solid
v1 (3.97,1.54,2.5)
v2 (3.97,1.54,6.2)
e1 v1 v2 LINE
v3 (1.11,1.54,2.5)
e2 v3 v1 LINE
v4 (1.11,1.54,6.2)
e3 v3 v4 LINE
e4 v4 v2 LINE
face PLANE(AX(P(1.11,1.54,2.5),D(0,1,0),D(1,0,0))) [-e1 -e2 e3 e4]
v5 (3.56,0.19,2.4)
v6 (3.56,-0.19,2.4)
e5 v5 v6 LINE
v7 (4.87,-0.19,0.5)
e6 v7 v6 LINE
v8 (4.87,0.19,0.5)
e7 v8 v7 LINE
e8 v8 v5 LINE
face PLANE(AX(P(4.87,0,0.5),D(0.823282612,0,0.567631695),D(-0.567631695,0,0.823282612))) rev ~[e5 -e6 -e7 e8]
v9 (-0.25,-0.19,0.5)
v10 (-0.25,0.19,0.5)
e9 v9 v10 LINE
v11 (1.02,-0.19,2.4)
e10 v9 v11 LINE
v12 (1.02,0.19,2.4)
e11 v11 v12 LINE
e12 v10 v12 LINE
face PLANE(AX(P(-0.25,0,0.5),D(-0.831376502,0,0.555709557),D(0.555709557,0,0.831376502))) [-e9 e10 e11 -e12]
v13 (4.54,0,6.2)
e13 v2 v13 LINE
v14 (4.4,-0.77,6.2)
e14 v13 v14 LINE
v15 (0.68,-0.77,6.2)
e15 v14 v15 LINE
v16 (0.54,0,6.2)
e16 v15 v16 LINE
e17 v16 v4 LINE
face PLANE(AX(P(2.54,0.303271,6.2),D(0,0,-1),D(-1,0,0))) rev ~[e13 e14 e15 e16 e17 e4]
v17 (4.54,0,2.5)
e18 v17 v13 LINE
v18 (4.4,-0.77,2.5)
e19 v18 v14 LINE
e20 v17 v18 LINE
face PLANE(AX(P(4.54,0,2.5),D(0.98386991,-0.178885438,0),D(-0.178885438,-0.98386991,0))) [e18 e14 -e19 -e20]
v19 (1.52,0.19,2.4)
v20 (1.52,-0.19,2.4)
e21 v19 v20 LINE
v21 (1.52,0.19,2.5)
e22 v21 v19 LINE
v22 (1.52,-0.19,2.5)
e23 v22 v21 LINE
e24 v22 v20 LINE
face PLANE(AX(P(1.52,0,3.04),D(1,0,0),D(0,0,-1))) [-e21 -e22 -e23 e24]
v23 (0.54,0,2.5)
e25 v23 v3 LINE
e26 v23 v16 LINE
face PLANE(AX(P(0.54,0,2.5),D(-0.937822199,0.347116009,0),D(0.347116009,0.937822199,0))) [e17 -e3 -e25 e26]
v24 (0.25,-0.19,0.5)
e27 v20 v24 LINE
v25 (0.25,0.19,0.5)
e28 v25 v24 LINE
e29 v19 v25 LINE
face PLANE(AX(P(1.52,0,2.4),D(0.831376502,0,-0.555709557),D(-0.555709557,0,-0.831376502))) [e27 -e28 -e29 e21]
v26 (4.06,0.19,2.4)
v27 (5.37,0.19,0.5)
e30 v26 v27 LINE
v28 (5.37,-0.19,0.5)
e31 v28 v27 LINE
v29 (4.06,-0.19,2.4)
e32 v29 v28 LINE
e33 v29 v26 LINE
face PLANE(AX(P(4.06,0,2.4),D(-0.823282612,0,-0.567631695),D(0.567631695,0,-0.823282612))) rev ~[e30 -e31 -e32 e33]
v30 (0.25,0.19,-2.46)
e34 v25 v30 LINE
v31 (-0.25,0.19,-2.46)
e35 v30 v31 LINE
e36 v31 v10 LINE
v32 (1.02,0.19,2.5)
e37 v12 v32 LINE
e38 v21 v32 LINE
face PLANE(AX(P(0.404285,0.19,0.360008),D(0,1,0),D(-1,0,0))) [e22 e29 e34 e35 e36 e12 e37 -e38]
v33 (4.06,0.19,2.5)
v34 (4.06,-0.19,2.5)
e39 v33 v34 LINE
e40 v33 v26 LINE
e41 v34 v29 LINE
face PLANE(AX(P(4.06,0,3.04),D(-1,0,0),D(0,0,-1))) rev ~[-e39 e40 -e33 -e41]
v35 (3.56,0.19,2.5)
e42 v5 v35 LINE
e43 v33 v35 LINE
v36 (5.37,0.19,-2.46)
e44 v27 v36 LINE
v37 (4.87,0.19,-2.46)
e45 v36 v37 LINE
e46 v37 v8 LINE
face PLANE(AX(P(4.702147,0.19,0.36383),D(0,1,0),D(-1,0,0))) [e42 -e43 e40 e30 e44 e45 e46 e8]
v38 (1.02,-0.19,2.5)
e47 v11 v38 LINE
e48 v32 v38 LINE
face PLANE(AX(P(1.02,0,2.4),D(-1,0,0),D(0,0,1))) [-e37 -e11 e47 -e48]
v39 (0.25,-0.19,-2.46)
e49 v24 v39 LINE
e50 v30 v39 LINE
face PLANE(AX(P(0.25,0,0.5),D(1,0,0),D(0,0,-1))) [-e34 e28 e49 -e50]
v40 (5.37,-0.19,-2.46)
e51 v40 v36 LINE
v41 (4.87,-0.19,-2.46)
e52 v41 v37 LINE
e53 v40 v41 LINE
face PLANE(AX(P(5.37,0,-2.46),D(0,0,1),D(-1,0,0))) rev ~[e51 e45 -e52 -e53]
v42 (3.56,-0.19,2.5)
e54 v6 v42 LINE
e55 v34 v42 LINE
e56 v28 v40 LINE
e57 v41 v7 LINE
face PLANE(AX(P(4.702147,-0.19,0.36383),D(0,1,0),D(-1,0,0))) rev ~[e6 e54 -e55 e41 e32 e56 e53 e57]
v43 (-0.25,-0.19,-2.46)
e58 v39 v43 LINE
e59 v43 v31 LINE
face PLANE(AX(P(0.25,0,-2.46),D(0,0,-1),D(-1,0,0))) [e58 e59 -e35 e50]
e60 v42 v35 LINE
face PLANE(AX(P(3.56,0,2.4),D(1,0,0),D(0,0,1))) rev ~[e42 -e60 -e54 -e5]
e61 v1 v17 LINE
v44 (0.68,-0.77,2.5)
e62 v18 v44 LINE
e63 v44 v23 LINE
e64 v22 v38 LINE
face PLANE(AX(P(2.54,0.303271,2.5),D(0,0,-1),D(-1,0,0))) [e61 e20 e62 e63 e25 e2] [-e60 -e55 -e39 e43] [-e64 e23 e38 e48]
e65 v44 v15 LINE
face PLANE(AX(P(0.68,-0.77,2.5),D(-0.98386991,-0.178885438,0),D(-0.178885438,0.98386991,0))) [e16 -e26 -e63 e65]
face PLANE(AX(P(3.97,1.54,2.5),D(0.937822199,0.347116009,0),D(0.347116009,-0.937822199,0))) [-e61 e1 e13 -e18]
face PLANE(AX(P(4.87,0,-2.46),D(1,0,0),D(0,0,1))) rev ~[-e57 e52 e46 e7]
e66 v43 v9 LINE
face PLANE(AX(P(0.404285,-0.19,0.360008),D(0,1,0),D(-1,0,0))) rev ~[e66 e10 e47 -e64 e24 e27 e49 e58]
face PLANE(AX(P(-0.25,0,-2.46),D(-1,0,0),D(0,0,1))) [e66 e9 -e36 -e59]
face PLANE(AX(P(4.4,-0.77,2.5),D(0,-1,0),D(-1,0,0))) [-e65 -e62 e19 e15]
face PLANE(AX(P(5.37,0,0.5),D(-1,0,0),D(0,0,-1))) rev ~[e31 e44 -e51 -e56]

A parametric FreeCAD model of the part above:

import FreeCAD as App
import Part
import Sketcher

V = App.Vector


def add_polygon(sketch, points):
    """Adds a closed chain of lines whose ends are joined by coincident constraints."""
    first, n = sketch.GeometryCount, len(points)
    for a, b in zip(points, points[1:] + points[:1]):
        sketch.addGeometry(Part.LineSegment(App.Vector(*a, 0), App.Vector(*b, 0)), False)
    for i in range(n):
        sketch.addConstraint(Sketcher.Constraint("Coincident", first + i, 2, first + (i + 1) % n, 1))

doc = App.newDocument("Part")
params = doc.addObject("Spreadsheet::Sheet", "Params")
for row, (alias, value) in enumerate([
    ("sketch1_width", "2.86 mm"),
    ("sketch1_width2", "3.72 mm"),
    ("pad1_length", "3.7 mm"),
    ("sketch2_width", "0.5 mm"),
    ("sketch2_height", "2.96 mm"),
    ("sketch2_height2", "0.64 mm"),
    ("pad2_length", "0.38 mm"),
], start=1):
    params.set(f"A{row}", alias)
    params.set(f"B{row}", "=" + value)
    params.setAlias(f"B{row}", alias)

body = doc.addObject("PartDesign::Body", "Body")

# Sketch on XY plane
sketch1 = doc.addObject("Sketcher::SketchObject", "Sketch")
body.addObject(sketch1)
sketch1.AttachmentSupport = (doc.XY_Plane, [""])
sketch1.MapMode = "FlatFace"
sketch1.AttachmentOffset = App.Placement(V(0, 0, 2.5), App.Rotation())
add_polygon(sketch1, [(3.97, 1.54), (1.11, 1.54), (0.54, 0), (0.68, -0.77), (4.4, -0.77), (4.54, 0)])  # lines 0-5
sketch1.addConstraint([
    Sketcher.Constraint("Horizontal", 0),
    Sketcher.Constraint("Horizontal", 3),
    Sketcher.Constraint("PointOnObject", 1, 2, -1),
    Sketcher.Constraint("PointOnObject", 4, 2, -1),
    Sketcher.Constraint("Equal", 2, 4),
    Sketcher.Constraint("Equal", 1, 5),
    Sketcher.Constraint("DistanceX", 1, 2, 4, 2, 4.0),
    Sketcher.Constraint("DistanceX", 0, 2, 0, 1, 2.86),
    Sketcher.Constraint("DistanceX", 3, 1, 3, 2, 3.72),
    Sketcher.Constraint("DistanceX", -1, 1, 3, 2, 4.4),
    Sketcher.Constraint("DistanceY", -1, 1, 0, 2, 1.54),
    Sketcher.Constraint("DistanceY", 2, 2, -1, 1, 0.77),
])
sketch1.setExpression("Constraints[13]", "Params.sketch1_width")
sketch1.setExpression("Constraints[14]", "Params.sketch1_width2")
pad1 = doc.addObject("PartDesign::Pad", "Pad")
body.addObject(pad1)
pad1.Profile = sketch1
pad1.setExpression("Length", "Params.pad1_length")
body2 = doc.addObject("PartDesign::Body", "Body001")
body2.AllowCompound = True

# Sketch on XZ plane
sketch2 = doc.addObject("Sketcher::SketchObject", "Sketch001")
body2.addObject(sketch2)
sketch2.AttachmentSupport = (doc.getObject("XZ_Plane001"), [""])
sketch2.MapMode = "FlatFace"
add_polygon(sketch2, [(-0.25, -2.46), (0.25, -2.46), (0.25, 0.5), (1.52, 2.4), (1.52, 3.04), (1.02, 3.04), (1.02, 2.4), (-0.25, 0.5)])  # lines 0-7
add_polygon(sketch2, [(4.06, 3.04), (3.56, 3.04), (3.56, 2.4), (4.87, 0.5), (4.87, -2.46), (5.37, -2.46), (5.37, 0.5), (4.06, 2.4)])  # lines 8-15
sketch2.addConstraint([
    Sketcher.Constraint("Horizontal", 0),
    Sketcher.Constraint("Vertical", 1),
    Sketcher.Constraint("Vertical", 3),
    Sketcher.Constraint("Horizontal", 4),
    Sketcher.Constraint("Vertical", 5),
    Sketcher.Constraint("Vertical", 7),
    Sketcher.Constraint("Horizontal", 8),
    Sketcher.Constraint("Vertical", 9),
    Sketcher.Constraint("Vertical", 11),
    Sketcher.Constraint("Horizontal", 12),
    Sketcher.Constraint("Vertical", 13),
    Sketcher.Constraint("Vertical", 15),
    Sketcher.Constraint("Symmetric", 1, 2, 6, 2, -2),
    Sketcher.Constraint("Parallel", 2, 6),
    Sketcher.Constraint("Parallel", 10, 14),
    Sketcher.Constraint("Horizontal", 2, 2, 5, 2),
    Sketcher.Constraint("Horizontal", 4, 2, 8, 2),
    Sketcher.Constraint("Horizontal", 5, 2, 9, 2),
    Sketcher.Constraint("Horizontal", 6, 2, 10, 2),
    Sketcher.Constraint("Horizontal", 7, 2, 11, 2),
    Sketcher.Constraint("Horizontal", 10, 2, 13, 2),
    Sketcher.Constraint("Horizontal", 9, 2, 14, 2),
    Sketcher.Constraint("Equal", 4, 8),
    Sketcher.Constraint("DistanceX", 0, 1, 0, 2, 0.5),
    Sketcher.Constraint("DistanceY", 1, 1, 1, 2, 2.96),
    Sketcher.Constraint("DistanceY", 3, 1, 3, 2, 0.64),
    Sketcher.Constraint("DistanceY", -1, 1, 1, 2, 0.5),
    Sketcher.Constraint("DistanceY", -1, 1, 2, 2, 2.4),
    Sketcher.Constraint("DistanceX", -1, 1, 2, 2, 1.52),
    Sketcher.Constraint("DistanceX", -1, 1, 8, 2, 3.56),
    Sketcher.Constraint("DistanceX", -1, 1, 10, 2, 4.87),
])
sketch2.setExpression("Constraints[39]", "Params.sketch2_width")
sketch2.setExpression("Constraints[40]", "Params.sketch2_height")
sketch2.setExpression("Constraints[41]", "Params.sketch2_height2")
pad2 = doc.addObject("PartDesign::Pad", "Pad001")
body2.addObject(pad2)
pad2.Profile = sketch2
pad2.setExpression("Length", "Params.pad2_length")
pad2.Midplane = True
doc.recompute()

boolean = doc.addObject("PartDesign::Boolean", "Boolean")
body2.addObject(boolean)
boolean.Type = "Fuse"
boolean.addObjects([body])

doc.recompute()
